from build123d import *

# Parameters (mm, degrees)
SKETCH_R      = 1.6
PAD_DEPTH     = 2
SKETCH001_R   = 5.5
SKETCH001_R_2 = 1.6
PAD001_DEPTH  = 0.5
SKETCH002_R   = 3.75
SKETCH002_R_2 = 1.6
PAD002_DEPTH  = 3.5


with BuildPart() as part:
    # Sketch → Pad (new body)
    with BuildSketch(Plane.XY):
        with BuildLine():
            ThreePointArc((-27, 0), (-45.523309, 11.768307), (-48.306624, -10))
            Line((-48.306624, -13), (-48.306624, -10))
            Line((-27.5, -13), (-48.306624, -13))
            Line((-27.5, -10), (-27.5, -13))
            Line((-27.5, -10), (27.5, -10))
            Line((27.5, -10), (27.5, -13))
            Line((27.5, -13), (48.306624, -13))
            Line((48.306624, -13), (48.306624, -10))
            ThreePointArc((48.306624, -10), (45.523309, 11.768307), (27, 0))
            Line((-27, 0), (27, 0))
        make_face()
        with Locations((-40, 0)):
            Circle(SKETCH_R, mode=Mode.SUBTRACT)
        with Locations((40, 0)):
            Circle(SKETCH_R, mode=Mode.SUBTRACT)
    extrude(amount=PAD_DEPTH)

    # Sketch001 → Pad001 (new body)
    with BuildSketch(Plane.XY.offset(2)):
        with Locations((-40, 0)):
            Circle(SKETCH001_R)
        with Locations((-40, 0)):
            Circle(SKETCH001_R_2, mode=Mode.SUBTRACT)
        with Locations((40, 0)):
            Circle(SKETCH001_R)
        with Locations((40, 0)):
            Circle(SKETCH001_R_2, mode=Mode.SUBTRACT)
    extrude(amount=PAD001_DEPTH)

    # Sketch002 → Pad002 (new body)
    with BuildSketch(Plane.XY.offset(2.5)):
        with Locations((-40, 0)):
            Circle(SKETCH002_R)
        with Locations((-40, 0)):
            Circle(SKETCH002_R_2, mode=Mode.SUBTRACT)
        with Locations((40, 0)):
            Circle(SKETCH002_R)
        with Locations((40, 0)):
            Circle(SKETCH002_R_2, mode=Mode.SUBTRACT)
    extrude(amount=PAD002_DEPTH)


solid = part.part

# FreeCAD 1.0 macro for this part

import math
import FreeCAD as App
import Part
import Sketcher

V = App.Vector

doc = App.newDocument("Part")
body = doc.addObject("PartDesign::Body", "Body")

# Sketch on XY plane
sketch1 = body.newObject("Sketcher::SketchObject", "Sketch")
sketch1.AttachmentSupport = (doc.getObject("XY_Plane"), [""])
sketch1.MapMode = "FlatFace"
sketch1.addGeometry([
    Part.ArcOfCircle(Part.Circle(V(-40, 0, 0), V(0, 0, 1), 13), math.radians(0.000001), math.radians(230.284861)),  # 0
    Part.LineSegment(V(-48.306624, -10, 0), V(-48.306624, -13, 0)),  # 1
    Part.LineSegment(V(-48.306624, -13, 0), V(-27.5, -13, 0)),  # 2
    Part.LineSegment(V(-27.5, -13, 0), V(-27.5, -10, 0)),  # 3
    Part.LineSegment(V(-27.5, -10, 0), V(27.5, -10, 0)),  # 4
    Part.LineSegment(V(27.5, -10, 0), V(27.5, -13, 0)),  # 5
    Part.LineSegment(V(27.5, -13, 0), V(48.306624, -13, 0)),  # 6
    Part.LineSegment(V(48.306624, -13, 0), V(48.306624, -10, 0)),  # 7
    Part.ArcOfCircle(Part.Circle(V(40, 0, 0), V(0, 0, 1), 13), math.radians(-50.284861), math.radians(179.999999)),  # 8
    Part.LineSegment(V(27, 0, 0), V(-27, 0, 0)),  # 9
    Part.Circle(V(-40, 0, 0), V(0, 0, 1), 1.6),  # 10
    Part.Circle(V(40, 0, 0), V(0, 0, 1), 1.6),  # 11
], False)
sketch1.addConstraint([
    Sketcher.Constraint("Coincident", 0, 2, 1, 1),
    Sketcher.Constraint("Coincident", 1, 2, 2, 1),
    Sketcher.Constraint("Coincident", 2, 2, 3, 1),
    Sketcher.Constraint("Coincident", 3, 2, 4, 1),
    Sketcher.Constraint("Coincident", 4, 2, 5, 1),
    Sketcher.Constraint("Coincident", 5, 2, 6, 1),
    Sketcher.Constraint("Coincident", 6, 2, 7, 1),
    Sketcher.Constraint("Coincident", 7, 2, 8, 1),
    Sketcher.Constraint("Coincident", 8, 2, 9, 1),
    Sketcher.Constraint("Coincident", 9, 2, 0, 1),
    Sketcher.Constraint("Vertical", 1),
    Sketcher.Constraint("Horizontal", 2),
    Sketcher.Constraint("Vertical", 3),
    Sketcher.Constraint("Horizontal", 4),
    Sketcher.Constraint("Vertical", 5),
    Sketcher.Constraint("Horizontal", 6),
    Sketcher.Constraint("Vertical", 7),
    Sketcher.Constraint("Horizontal", 9),
    Sketcher.Constraint("Coincident", 10, 3, 0, 3),
    Sketcher.Constraint("Coincident", 11, 3, 8, 3),
    Sketcher.Constraint("Equal", 0, 8),
    Sketcher.Constraint("Equal", 10, 11),
    Sketcher.Constraint("Symmetric", 0, 3, 8, 3, -1, 1),
    Sketcher.Constraint("Symmetric", 2, 2, 5, 2, -2),
    Sketcher.Constraint("Symmetric", 0, 2, 7, 2, -2),
    Sketcher.Constraint("PointOnObject", 8, 2, -1),
    Sketcher.Constraint("Horizontal", 0, 2, 3, 2),
    Sketcher.Constraint("Radius", 0, 13.0),
    Sketcher.Constraint("Diameter", 10, 3.2),
    Sketcher.Constraint("DistanceX", 4, 1, 4, 2, 55.0),
    Sketcher.Constraint("DistanceX", 9, 2, 9, 1, 54.0),
    Sketcher.Constraint("DistanceY", 1, 2, 1, 1, 3.0),
    Sketcher.Constraint("DistanceY", 0, 2, -1, 1, 10.0),
])
pad1 = body.newObject("PartDesign::Pad", "Pad")
pad1.Profile = sketch1
pad1.Length = 2

# Sketch on XY plane
sketch2 = body.newObject("Sketcher::SketchObject", "Sketch001")
sketch2.AttachmentSupport = (doc.getObject("XY_Plane"), [""])
sketch2.MapMode = "FlatFace"
sketch2.AttachmentOffset = App.Placement(V(0, 0, 2), App.Rotation())
sketch2.addGeometry([
    Part.Circle(V(-40, 0, 0), V(0, 0, 1), 5.5),
    Part.Circle(V(-40, 0, 0), V(0, 0, 1), 1.6),
    Part.Circle(V(40, 0, 0), V(0, 0, 1), 5.5),
    Part.Circle(V(40, 0, 0), V(0, 0, 1), 1.6),
], False)
sketch2.addConstraint([
    Sketcher.Constraint("Coincident", 1, 3, 0, 3),
    Sketcher.Constraint("Coincident", 3, 3, 2, 3),
    Sketcher.Constraint("Equal", 0, 2),
    Sketcher.Constraint("Equal", 1, 3),
    Sketcher.Constraint("Symmetric", 0, 3, 2, 3, -1, 1),
    Sketcher.Constraint("PointOnObject", 0, 3, -1),
    Sketcher.Constraint("Diameter", 0, 11.0),
    Sketcher.Constraint("Diameter", 1, 3.2),
    Sketcher.Constraint("DistanceX", 0, 3, -1, 1, 40.0),
])
pad2 = body.newObject("PartDesign::Pad", "Pad001")
pad2.Profile = sketch2
pad2.Length = 0.5

# Sketch on XY plane
sketch3 = body.newObject("Sketcher::SketchObject", "Sketch002")
sketch3.AttachmentSupport = (doc.getObject("XY_Plane"), [""])
sketch3.MapMode = "FlatFace"
sketch3.AttachmentOffset = App.Placement(V(0, 0, 2.5), App.Rotation())
sketch3.addGeometry([
    Part.Circle(V(-40, 0, 0), V(0, 0, 1), 3.75),
    Part.Circle(V(-40, 0, 0), V(0, 0, 1), 1.6),
    Part.Circle(V(40, 0, 0), V(0, 0, 1), 3.75),
    Part.Circle(V(40, 0, 0), V(0, 0, 1), 1.6),
], False)
sketch3.addConstraint([
    Sketcher.Constraint("Coincident", 1, 3, 0, 3),
    Sketcher.Constraint("Coincident", 3, 3, 2, 3),
    Sketcher.Constraint("Equal", 0, 2),
    Sketcher.Constraint("Equal", 1, 3),
    Sketcher.Constraint("Symmetric", 0, 3, 2, 3, -1, 1),
    Sketcher.Constraint("PointOnObject", 0, 3, -1),
    Sketcher.Constraint("Diameter", 0, 7.5),
    Sketcher.Constraint("Diameter", 1, 3.2),
    Sketcher.Constraint("DistanceX", 0, 3, -1, 1, 40.0),
])
pad3 = body.newObject("PartDesign::Pad", "Pad002")
pad3.Profile = sketch3
pad3.Length = 3.5

doc.recompute()
